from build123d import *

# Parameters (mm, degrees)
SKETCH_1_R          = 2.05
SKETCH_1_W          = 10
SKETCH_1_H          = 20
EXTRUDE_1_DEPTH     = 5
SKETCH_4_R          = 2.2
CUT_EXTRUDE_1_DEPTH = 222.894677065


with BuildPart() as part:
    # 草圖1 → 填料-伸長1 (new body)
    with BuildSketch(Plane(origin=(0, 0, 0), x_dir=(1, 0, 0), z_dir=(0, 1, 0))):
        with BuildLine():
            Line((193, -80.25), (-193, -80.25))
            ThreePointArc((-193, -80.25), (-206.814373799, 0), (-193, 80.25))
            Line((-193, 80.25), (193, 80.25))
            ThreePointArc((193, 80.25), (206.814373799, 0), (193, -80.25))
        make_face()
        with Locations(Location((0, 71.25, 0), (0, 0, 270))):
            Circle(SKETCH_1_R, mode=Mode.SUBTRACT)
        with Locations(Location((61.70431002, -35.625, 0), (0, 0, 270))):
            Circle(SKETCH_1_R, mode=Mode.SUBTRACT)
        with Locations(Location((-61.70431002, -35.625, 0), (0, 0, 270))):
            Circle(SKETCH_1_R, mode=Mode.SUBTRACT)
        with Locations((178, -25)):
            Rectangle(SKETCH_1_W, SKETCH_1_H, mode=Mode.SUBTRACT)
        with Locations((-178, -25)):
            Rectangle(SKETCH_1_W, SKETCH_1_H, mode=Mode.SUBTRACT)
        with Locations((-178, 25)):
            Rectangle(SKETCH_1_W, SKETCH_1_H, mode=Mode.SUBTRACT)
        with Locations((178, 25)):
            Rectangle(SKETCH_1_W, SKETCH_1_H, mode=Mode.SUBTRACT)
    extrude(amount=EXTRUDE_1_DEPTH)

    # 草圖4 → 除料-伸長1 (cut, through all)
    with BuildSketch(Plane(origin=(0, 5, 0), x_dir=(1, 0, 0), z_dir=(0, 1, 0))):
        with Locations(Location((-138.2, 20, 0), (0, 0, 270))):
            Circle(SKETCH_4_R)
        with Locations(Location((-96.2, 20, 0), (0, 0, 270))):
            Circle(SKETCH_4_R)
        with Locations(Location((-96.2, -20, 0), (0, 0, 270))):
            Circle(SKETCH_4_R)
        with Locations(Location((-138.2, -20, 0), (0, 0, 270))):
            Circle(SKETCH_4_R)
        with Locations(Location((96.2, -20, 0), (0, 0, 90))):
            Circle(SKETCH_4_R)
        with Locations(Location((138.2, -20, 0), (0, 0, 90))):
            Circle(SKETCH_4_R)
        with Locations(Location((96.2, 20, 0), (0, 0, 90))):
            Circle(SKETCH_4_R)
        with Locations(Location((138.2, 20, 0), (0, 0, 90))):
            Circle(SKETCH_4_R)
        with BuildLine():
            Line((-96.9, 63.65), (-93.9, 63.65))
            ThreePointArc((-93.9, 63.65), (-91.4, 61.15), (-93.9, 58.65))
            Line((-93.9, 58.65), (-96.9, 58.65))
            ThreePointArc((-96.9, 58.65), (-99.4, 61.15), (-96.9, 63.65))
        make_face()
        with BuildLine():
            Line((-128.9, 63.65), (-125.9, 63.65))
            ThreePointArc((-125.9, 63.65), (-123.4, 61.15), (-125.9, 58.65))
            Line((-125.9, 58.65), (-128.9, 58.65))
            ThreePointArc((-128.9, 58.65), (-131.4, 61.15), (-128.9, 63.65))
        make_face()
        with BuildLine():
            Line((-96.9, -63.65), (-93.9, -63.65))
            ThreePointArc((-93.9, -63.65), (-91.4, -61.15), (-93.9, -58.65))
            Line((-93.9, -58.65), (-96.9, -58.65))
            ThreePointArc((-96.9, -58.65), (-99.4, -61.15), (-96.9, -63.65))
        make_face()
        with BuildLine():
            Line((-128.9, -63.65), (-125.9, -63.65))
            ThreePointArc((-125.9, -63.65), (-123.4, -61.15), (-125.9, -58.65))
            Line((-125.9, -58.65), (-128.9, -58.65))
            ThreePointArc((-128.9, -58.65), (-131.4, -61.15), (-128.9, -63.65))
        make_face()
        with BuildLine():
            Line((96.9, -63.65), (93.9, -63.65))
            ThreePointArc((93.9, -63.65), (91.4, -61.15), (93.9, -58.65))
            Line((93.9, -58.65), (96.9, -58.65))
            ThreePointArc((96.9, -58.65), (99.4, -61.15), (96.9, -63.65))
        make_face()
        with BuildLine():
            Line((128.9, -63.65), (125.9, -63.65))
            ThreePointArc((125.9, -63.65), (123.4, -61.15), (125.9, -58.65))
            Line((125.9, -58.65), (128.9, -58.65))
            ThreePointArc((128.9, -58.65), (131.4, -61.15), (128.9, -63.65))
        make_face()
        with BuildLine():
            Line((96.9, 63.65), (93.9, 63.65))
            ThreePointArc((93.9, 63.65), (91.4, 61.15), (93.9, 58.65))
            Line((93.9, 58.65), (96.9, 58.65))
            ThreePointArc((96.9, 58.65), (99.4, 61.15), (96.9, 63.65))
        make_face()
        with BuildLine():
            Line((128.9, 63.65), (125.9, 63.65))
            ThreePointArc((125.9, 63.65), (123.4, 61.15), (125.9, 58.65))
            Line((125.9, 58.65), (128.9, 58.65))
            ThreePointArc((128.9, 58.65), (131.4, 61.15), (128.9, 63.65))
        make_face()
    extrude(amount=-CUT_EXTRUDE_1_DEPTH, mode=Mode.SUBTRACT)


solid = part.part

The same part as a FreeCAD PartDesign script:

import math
import FreeCAD as App
import Part
import Sketcher

doc = App.newDocument("Part")
body = doc.addObject("PartDesign::Body", "Body")

# Sketch on XZ plane
sketch1 = body.newObject("Sketcher::SketchObject", "Sketch")
sketch1.AttachmentSupport = (doc.getObject("XZ_Plane"), [""])
sketch1.MapMode = "FlatFace"
sketch1.addGeometry(Part.LineSegment(App.Vector(-193, 80.2, 0), App.Vector(193, 80.2, 0)), False)
sketch1.addGeometry(Part.ArcOfCircle(Part.Circle(App.Vector(-33.2, 0, 0), App.Vector(0, 0, 1), 240), math.radians(-20), math.radians(20)), False)
sketch1.addGeometry(Part.LineSegment(App.Vector(193, -80.2, 0), App.Vector(-193, -80.2, 0)), False)
sketch1.addGeometry(Part.ArcOfCircle(Part.Circle(App.Vector(33.2, 0, 0), App.Vector(0, 0, 1), 240), math.radians(160), math.radians(200)), False)
sketch1.addGeometry(Part.LineSegment(App.Vector(173, 35, 0), App.Vector(173, 15, 0)), False)
sketch1.addGeometry(Part.LineSegment(App.Vector(173, 15, 0), App.Vector(183, 15, 0)), False)
sketch1.addGeometry(Part.LineSegment(App.Vector(183, 15, 0), App.Vector(183, 35, 0)), False)
sketch1.addGeometry(Part.LineSegment(App.Vector(183, 35, 0), App.Vector(173, 35, 0)), False)
sketch1.addGeometry(Part.Circle(App.Vector(61.7, 35.6, 0), App.Vector(0, 0, 1), 2), False)
sketch1.addGeometry(Part.Circle(App.Vector(-61.7, 35.6, 0), App.Vector(0, 0, 1), 2), False)
sketch1.addGeometry(Part.LineSegment(App.Vector(-183, 35, 0), App.Vector(-183, 15, 0)), False)
sketch1.addGeometry(Part.LineSegment(App.Vector(-183, 15, 0), App.Vector(-173, 15, 0)), False)
sketch1.addGeometry(Part.LineSegment(App.Vector(-173, 15, 0), App.Vector(-173, 35, 0)), False)
sketch1.addGeometry(Part.LineSegment(App.Vector(-173, 35, 0), App.Vector(-183, 35, 0)), False)
sketch1.addGeometry(Part.LineSegment(App.Vector(173, -15, 0), App.Vector(173, -35, 0)), False)
sketch1.addGeometry(Part.LineSegment(App.Vector(173, -35, 0), App.Vector(183, -35, 0)), False)
sketch1.addGeometry(Part.LineSegment(App.Vector(183, -35, 0), App.Vector(183, -15, 0)), False)
sketch1.addGeometry(Part.LineSegment(App.Vector(183, -15, 0), App.Vector(173, -15, 0)), False)
sketch1.addGeometry(Part.LineSegment(App.Vector(-183, -15, 0), App.Vector(-183, -35, 0)), False)
sketch1.addGeometry(Part.LineSegment(App.Vector(-183, -35, 0), App.Vector(-173, -35, 0)), False)
sketch1.addGeometry(Part.LineSegment(App.Vector(-173, -35, 0), App.Vector(-173, -15, 0)), False)
sketch1.addGeometry(Part.LineSegment(App.Vector(-173, -15, 0), App.Vector(-183, -15, 0)), False)
sketch1.addGeometry(Part.Circle(App.Vector(0, -71.2, 0), App.Vector(0, 0, 1), 2), False)
sketch1.addConstraint(Sketcher.Constraint("Coincident", 0, 2, 1, 2))
sketch1.addConstraint(Sketcher.Constraint("Coincident", 1, 1, 2, 1))
sketch1.addConstraint(Sketcher.Constraint("Coincident", 2, 2, 3, 2))
sketch1.addConstraint(Sketcher.Constraint("Coincident", 3, 1, 0, 1))
sketch1.addConstraint(Sketcher.Constraint("Coincident", 4, 2, 5, 1))
sketch1.addConstraint(Sketcher.Constraint("Coincident", 5, 2, 6, 1))
sketch1.addConstraint(Sketcher.Constraint("Coincident", 6, 2, 7, 1))
sketch1.addConstraint(Sketcher.Constraint("Coincident", 7, 2, 4, 1))
sketch1.addConstraint(Sketcher.Constraint("Coincident", 10, 2, 11, 1))
sketch1.addConstraint(Sketcher.Constraint("Coincident", 11, 2, 12, 1))
sketch1.addConstraint(Sketcher.Constraint("Coincident", 12, 2, 13, 1))
sketch1.addConstraint(Sketcher.Constraint("Coincident", 13, 2, 10, 1))
sketch1.addConstraint(Sketcher.Constraint("Coincident", 14, 2, 15, 1))
sketch1.addConstraint(Sketcher.Constraint("Coincident", 15, 2, 16, 1))
sketch1.addConstraint(Sketcher.Constraint("Coincident", 16, 2, 17, 1))
sketch1.addConstraint(Sketcher.Constraint("Coincident", 17, 2, 14, 1))
sketch1.addConstraint(Sketcher.Constraint("Coincident", 18, 2, 19, 1))
sketch1.addConstraint(Sketcher.Constraint("Coincident", 19, 2, 20, 1))
sketch1.addConstraint(Sketcher.Constraint("Coincident", 20, 2, 21, 1))
sketch1.addConstraint(Sketcher.Constraint("Coincident", 21, 2, 18, 1))
sketch1.addConstraint(Sketcher.Constraint("Horizontal", 0))
sketch1.addConstraint(Sketcher.Constraint("Horizontal", 2))
sketch1.addConstraint(Sketcher.Constraint("Vertical", 4))
sketch1.addConstraint(Sketcher.Constraint("Horizontal", 5))
sketch1.addConstraint(Sketcher.Constraint("Vertical", 6))
sketch1.addConstraint(Sketcher.Constraint("Horizontal", 7))
sketch1.addConstraint(Sketcher.Constraint("Vertical", 10))
sketch1.addConstraint(Sketcher.Constraint("Horizontal", 11))
sketch1.addConstraint(Sketcher.Constraint("Vertical", 12))
sketch1.addConstraint(Sketcher.Constraint("Horizontal", 13))
sketch1.addConstraint(Sketcher.Constraint("Vertical", 14))
sketch1.addConstraint(Sketcher.Constraint("Horizontal", 15))
sketch1.addConstraint(Sketcher.Constraint("Vertical", 16))
sketch1.addConstraint(Sketcher.Constraint("Horizontal", 17))
sketch1.addConstraint(Sketcher.Constraint("Vertical", 18))
sketch1.addConstraint(Sketcher.Constraint("Horizontal", 19))
sketch1.addConstraint(Sketcher.Constraint("Vertical", 20))
sketch1.addConstraint(Sketcher.Constraint("Horizontal", 21))
sketch1.addConstraint(Sketcher.Constraint("Equal", 1, 3))
sketch1.addConstraint(Sketcher.Constraint("Equal", 8, 9))
sketch1.addConstraint(Sketcher.Constraint("Equal", 9, 22))
sketch1.addConstraint(Sketcher.Constraint("Symmetric", 1, 3, 3, 3, -1, 1))
sketch1.addConstraint(Sketcher.Constraint("Symmetric", 12, 2, 14, 2, -1, 1))
sketch1.addConstraint(Sketcher.Constraint("Symmetric", 10, 2, 16, 2, -1, 1))
sketch1.addConstraint(Sketcher.Constraint("Symmetric", 6, 2, 18, 2, -1, 1))
sketch1.addConstraint(Sketcher.Constraint("Symmetric", 4, 2, 20, 2, -1, 1))
sketch1.addConstraint(Sketcher.Constraint("Symmetric", 8, 3, 9, 3, -2))
sketch1.addConstraint(Sketcher.Constraint("Symmetric", 5, 2, 10, 2, -2))
sketch1.addConstraint(Sketcher.Constraint("Symmetric", 7, 2, 12, 2, -2))
sketch1.addConstraint(Sketcher.Constraint("Symmetric", 0, 2, 1, 1, -1))
sketch1.addConstraint(Sketcher.Constraint("PointOnObject", 22, 3, -2))
sketch1.addConstraint(Sketcher.Constraint("Radius", 1, 240.0))
sketch1.addConstraint(Sketcher.Constraint("Diameter", 8, 4.1))
sketch1.addConstraint(Sketcher.Constraint("DistanceX", 0, 1, 0, 2, 386.0))
sketch1.addConstraint(Sketcher.Constraint("DistanceX", 5, 1, 5, 2, 10.0))
sketch1.addConstraint(Sketcher.Constraint("DistanceY", 4, 2, 4, 1, 20.0))
sketch1.addConstraint(Sketcher.Constraint("DistanceX", -1, 1, 4, 2, 173.0))
sketch1.addConstraint(Sketcher.Constraint("DistanceY", -1, 1, 4, 2, 15.0))
sketch1.addConstraint(Sketcher.Constraint("DistanceY", 1, 1, 22, 3, 9.0))
sketch1.addConstraint(Sketcher.Constraint("DistanceY", 22, 3, 0, 2, 151.5))
sketch1.addConstraint(Sketcher.Constraint("DistanceY", -1, 1, 8, 3, 35.625))
sketch1.addConstraint(Sketcher.Constraint("DistanceX", -1, 1, 8, 3, 61.70431))
pad1 = body.newObject("PartDesign::Pad", "Pad")
pad1.Profile = sketch1
pad1.Length = 5
pad1.Reversed = True

# Sketch on XZ plane
sketch2 = body.newObject("Sketcher::SketchObject", "Sketch001")
sketch2.AttachmentSupport = (doc.getObject("XZ_Plane"), [""])
sketch2.MapMode = "FlatFace"
sketch2.AttachmentOffset = App.Placement(App.Vector(0, 0, -5), App.Rotation())
sketch2.addGeometry(Part.Circle(App.Vector(-138.2, -20, 0), App.Vector(0, 0, 1), 2.2), False)
sketch2.addGeometry(Part.Circle(App.Vector(-96.2, -20, 0), App.Vector(0, 0, 1), 2.2), False)
sketch2.addGeometry(Part.Circle(App.Vector(-96.2, 20, 0), App.Vector(0, 0, 1), 2.2), False)
sketch2.addGeometry(Part.Circle(App.Vector(-138.2, 20, 0), App.Vector(0, 0, 1), 2.2), False)
sketch2.addGeometry(Part.Circle(App.Vector(96.2, 20, 0), App.Vector(0, 0, 1), 2.2), False)
sketch2.addGeometry(Part.Circle(App.Vector(138.2, 20, 0), App.Vector(0, 0, 1), 2.2), False)
sketch2.addGeometry(Part.Circle(App.Vector(96.2, -20, 0), App.Vector(0, 0, 1), 2.2), False)
sketch2.addGeometry(Part.Circle(App.Vector(138.2, -20, 0), App.Vector(0, 0, 1), 2.2), False)
sketch2.addGeometry(Part.LineSegment(App.Vector(-93.9, -63.6, 0), App.Vector(-96.9, -63.6, 0)), False)
sketch2.addGeometry(Part.ArcOfCircle(Part.Circle(App.Vector(-96.9, -61.1, 0), App.Vector(0, 0, 1), 2.5), math.radians(90), math.radians(270)), False)
sketch2.addGeometry(Part.LineSegment(App.Vector(-96.9, -58.6, 0), App.Vector(-93.9, -58.6, 0)), False)
sketch2.addGeometry(Part.ArcOfCircle(Part.Circle(App.Vector(-93.9, -61.1, 0), App.Vector(0, 0, 1), 2.5), math.radians(-90), math.radians(90)), False)
sketch2.addGeometry(Part.LineSegment(App.Vector(-125.9, -63.6, 0), App.Vector(-128.9, -63.6, 0)), False)
sketch2.addGeometry(Part.ArcOfCircle(Part.Circle(App.Vector(-128.9, -61.1, 0), App.Vector(0, 0, 1), 2.5), math.radians(90), math.radians(270)), False)
sketch2.addGeometry(Part.LineSegment(App.Vector(-128.9, -58.6, 0), App.Vector(-125.9, -58.6, 0)), False)
sketch2.addGeometry(Part.ArcOfCircle(Part.Circle(App.Vector(-125.9, -61.1, 0), App.Vector(0, 0, 1), 2.5), math.radians(-90), math.radians(90)), False)
sketch2.addGeometry(Part.LineSegment(App.Vector(-96.9, 63.6, 0), App.Vector(-93.9, 63.6, 0)), False)
sketch2.addGeometry(Part.ArcOfCircle(Part.Circle(App.Vector(-93.9, 61.1, 0), App.Vector(0, 0, 1), 2.5), math.radians(-90), math.radians(90)), False)
sketch2.addGeometry(Part.LineSegment(App.Vector(-93.9, 58.6, 0), App.Vector(-96.9, 58.6, 0)), False)
sketch2.addGeometry(Part.ArcOfCircle(Part.Circle(App.Vector(-96.9, 61.1, 0), App.Vector(0, 0, 1), 2.5), math.radians(90), math.radians(270)), False)
sketch2.addGeometry(Part.LineSegment(App.Vector(-128.9, 63.6, 0), App.Vector(-125.9, 63.6, 0)), False)
sketch2.addGeometry(Part.ArcOfCircle(Part.Circle(App.Vector(-125.9, 61.1, 0), App.Vector(0, 0, 1), 2.5), math.radians(-90), math.radians(90)), False)
sketch2.addGeometry(Part.LineSegment(App.Vector(-125.9, 58.6, 0), App.Vector(-128.9, 58.6, 0)), False)
sketch2.addGeometry(Part.ArcOfCircle(Part.Circle(App.Vector(-128.9, 61.1, 0), App.Vector(0, 0, 1), 2.5), math.radians(90), math.radians(270)), False)
sketch2.addGeometry(Part.LineSegment(App.Vector(93.9, 63.6, 0), App.Vector(96.9, 63.6, 0)), False)
sketch2.addGeometry(Part.ArcOfCircle(Part.Circle(App.Vector(96.9, 61.1, 0), App.Vector(0, 0, 1), 2.5), math.radians(-90), math.radians(90)), False)
sketch2.addGeometry(Part.LineSegment(App.Vector(96.9, 58.6, 0), App.Vector(93.9, 58.6, 0)), False)
sketch2.addGeometry(Part.ArcOfCircle(Part.Circle(App.Vector(93.9, 61.1, 0), App.Vector(0, 0, 1), 2.5), math.radians(90), math.radians(270)), False)
sketch2.addGeometry(Part.LineSegment(App.Vector(125.9, 63.6, 0), App.Vector(128.9, 63.6, 0)), False)
sketch2.addGeometry(Part.ArcOfCircle(Part.Circle(App.Vector(128.9, 61.1, 0), App.Vector(0, 0, 1), 2.5), math.radians(-90), math.radians(90)), False)
sketch2.addGeometry(Part.LineSegment(App.Vector(128.9, 58.6, 0), App.Vector(125.9, 58.6, 0)), False)
sketch2.addGeometry(Part.ArcOfCircle(Part.Circle(App.Vector(125.9, 61.1, 0), App.Vector(0, 0, 1), 2.5), math.radians(90), math.radians(270)), False)
sketch2.addGeometry(Part.LineSegment(App.Vector(96.9, -63.6, 0), App.Vector(93.9, -63.6, 0)), False)
sketch2.addGeometry(Part.ArcOfCircle(Part.Circle(App.Vector(93.9, -61.1, 0), App.Vector(0, 0, 1), 2.5), math.radians(90), math.radians(270)), False)
sketch2.addGeometry(Part.LineSegment(App.Vector(93.9, -58.6, 0), App.Vector(96.9, -58.6, 0)), False)
sketch2.addGeometry(Part.ArcOfCircle(Part.Circle(App.Vector(96.9, -61.1, 0), App.Vector(0, 0, 1), 2.5), math.radians(-90), math.radians(90)), False)
sketch2.addGeometry(Part.LineSegment(App.Vector(128.9, -63.6, 0), App.Vector(125.9, -63.6, 0)), False)
sketch2.addGeometry(Part.ArcOfCircle(Part.Circle(App.Vector(125.9, -61.1, 0), App.Vector(0, 0, 1), 2.5), math.radians(90), math.radians(270)), False)
sketch2.addGeometry(Part.LineSegment(App.Vector(125.9, -58.6, 0), App.Vector(128.9, -58.6, 0)), False)
sketch2.addGeometry(Part.ArcOfCircle(Part.Circle(App.Vector(128.9, -61.1, 0), App.Vector(0, 0, 1), 2.5), math.radians(-90), math.radians(90)), False)
sketch2.addConstraint(Sketcher.Constraint("Tangent", 8, 2, 9, 2))
sketch2.addConstraint(Sketcher.Constraint("Tangent", 9, 1, 10, 1))
sketch2.addConstraint(Sketcher.Constraint("Tangent", 10, 2, 11, 2))
sketch2.addConstraint(Sketcher.Constraint("Tangent", 11, 1, 8, 1))
sketch2.addConstraint(Sketcher.Constraint("Tangent", 12, 2, 13, 2))
sketch2.addConstraint(Sketcher.Constraint("Tangent", 13, 1, 14, 1))
sketch2.addConstraint(Sketcher.Constraint("Tangent", 14, 2, 15, 2))
sketch2.addConstraint(Sketcher.Constraint("Tangent", 15, 1, 12, 1))
sketch2.addConstraint(Sketcher.Constraint("Tangent", 16, 2, 17, 2))
sketch2.addConstraint(Sketcher.Constraint("Tangent", 17, 1, 18, 1))
sketch2.addConstraint(Sketcher.Constraint("Tangent", 18, 2, 19, 2))
sketch2.addConstraint(Sketcher.Constraint("Tangent", 19, 1, 16, 1))
sketch2.addConstraint(Sketcher.Constraint("Tangent", 20, 2, 21, 2))
sketch2.addConstraint(Sketcher.Constraint("Tangent", 21, 1, 22, 1))
sketch2.addConstraint(Sketcher.Constraint("Tangent", 22, 2, 23, 2))
sketch2.addConstraint(Sketcher.Constraint("Tangent", 23, 1, 20, 1))
sketch2.addConstraint(Sketcher.Constraint("Tangent", 24, 2, 25, 2))
sketch2.addConstraint(Sketcher.Constraint("Tangent", 25, 1, 26, 1))
sketch2.addConstraint(Sketcher.Constraint("Tangent", 26, 2, 27, 2))
sketch2.addConstraint(Sketcher.Constraint("Tangent", 27, 1, 24, 1))
sketch2.addConstraint(Sketcher.Constraint("Tangent", 28, 2, 29, 2))
sketch2.addConstraint(Sketcher.Constraint("Tangent", 29, 1, 30, 1))
sketch2.addConstraint(Sketcher.Constraint("Tangent", 30, 2, 31, 2))
sketch2.addConstraint(Sketcher.Constraint("Tangent", 31, 1, 28, 1))
sketch2.addConstraint(Sketcher.Constraint("Tangent", 32, 2, 33, 2))
sketch2.addConstraint(Sketcher.Constraint("Tangent", 33, 1, 34, 1))
sketch2.addConstraint(Sketcher.Constraint("Tangent", 34, 2, 35, 2))
sketch2.addConstraint(Sketcher.Constraint("Tangent", 35, 1, 32, 1))
sketch2.addConstraint(Sketcher.Constraint("Tangent", 36, 2, 37, 2))
sketch2.addConstraint(Sketcher.Constraint("Tangent", 37, 1, 38, 1))
sketch2.addConstraint(Sketcher.Constraint("Tangent", 38, 2, 39, 2))
sketch2.addConstraint(Sketcher.Constraint("Tangent", 39, 1, 36, 1))
sketch2.addConstraint(Sketcher.Constraint("Horizontal", 8))
sketch2.addConstraint(Sketcher.Constraint("Horizontal", 10))
sketch2.addConstraint(Sketcher.Constraint("Horizontal", 12))
sketch2.addConstraint(Sketcher.Constraint("Horizontal", 14))
sketch2.addConstraint(Sketcher.Constraint("Horizontal", 16))
sketch2.addConstraint(Sketcher.Constraint("Horizontal", 18))
sketch2.addConstraint(Sketcher.Constraint("Horizontal", 20))
sketch2.addConstraint(Sketcher.Constraint("Horizontal", 22))
sketch2.addConstraint(Sketcher.Constraint("Horizontal", 24))
sketch2.addConstraint(Sketcher.Constraint("Horizontal", 26))
sketch2.addConstraint(Sketcher.Constraint("Horizontal", 28))
sketch2.addConstraint(Sketcher.Constraint("Horizontal", 30))
sketch2.addConstraint(Sketcher.Constraint("Horizontal", 32))
sketch2.addConstraint(Sketcher.Constraint("Horizontal", 34))
sketch2.addConstraint(Sketcher.Constraint("Horizontal", 36))
sketch2.addConstraint(Sketcher.Constraint("Horizontal", 38))
sketch2.addConstraint(Sketcher.Constraint("Equal", 0, 1))
sketch2.addConstraint(Sketcher.Constraint("Equal", 1, 2))
sketch2.addConstraint(Sketcher.Constraint("Equal", 2, 3))
sketch2.addConstraint(Sketcher.Constraint("Equal", 3, 4))
sketch2.addConstraint(Sketcher.Constraint("Equal", 4, 5))
sketch2.addConstraint(Sketcher.Constraint("Equal", 5, 6))
sketch2.addConstraint(Sketcher.Constraint("Equal", 6, 7))
sketch2.addConstraint(Sketcher.Constraint("Equal", 11, 13))
sketch2.addConstraint(Sketcher.Constraint("Equal", 15, 17))
sketch2.addConstraint(Sketcher.Constraint("Equal", 19, 21))
sketch2.addConstraint(Sketcher.Constraint("Equal", 23, 25))
sketch2.addConstraint(Sketcher.Constraint("Equal", 27, 29))
sketch2.addConstraint(Sketcher.Constraint("Equal", 31, 33))
sketch2.addConstraint(Sketcher.Constraint("Equal", 35, 37))
sketch2.addConstraint(Sketcher.Constraint("Symmetric", 1, 3, 4, 3, -1, 1))
sketch2.addConstraint(Sketcher.Constraint("Symmetric", 0, 3, 5, 3, -1, 1))
sketch2.addConstraint(Sketcher.Constraint("Symmetric", 2, 3, 6, 3, -1, 1))
sketch2.addConstraint(Sketcher.Constraint("Symmetric", 3, 3, 7, 3, -1, 1))
sketch2.addConstraint(Sketcher.Constraint("Symmetric", 9, 3, 25, 3, -1, 1))
sketch2.addConstraint(Sketcher.Constraint("Symmetric", 13, 3, 29, 3, -1, 1))
sketch2.addConstraint(Sketcher.Constraint("Symmetric", 17, 3, 33, 3, -1, 1))
sketch2.addConstraint(Sketcher.Constraint("Symmetric", 21, 3, 37, 3, -1, 1))
sketch2.addConstraint(Sketcher.Constraint("Symmetric", 2, 3, 4, 3, -2))
sketch2.addConstraint(Sketcher.Constraint("Symmetric", 3, 3, 5, 3, -2))
sketch2.addConstraint(Sketcher.Constraint("Symmetric", 19, 3, 25, 3, -2))
sketch2.addConstraint(Sketcher.Constraint("Symmetric", 23, 3, 29, 3, -2))
sketch2.addConstraint(Sketcher.Constraint("Horizontal", 0, 3, 1, 3))
sketch2.addConstraint(Sketcher.Constraint("Horizontal", 11, 3, 13, 3))
sketch2.addConstraint(Sketcher.Constraint("Vertical", 11, 3, 17, 3))
sketch2.addConstraint(Sketcher.Constraint("Vertical", 15, 3, 21, 3))
sketch2.addConstraint(Sketcher.Constraint("Vertical", 27, 3, 33, 3))
sketch2.addConstraint(Sketcher.Constraint("Vertical", 25, 3, 35, 3))
sketch2.addConstraint(Sketcher.Constraint("Vertical", 31, 3, 37, 3))
sketch2.addConstraint(Sketcher.Constraint("Vertical", 29, 3, 39, 3))
sketch2.addConstraint(Sketcher.Constraint("Equal", 10, 12))
sketch2.addConstraint(Sketcher.Constraint("Diameter", 0, 4.4))
sketch2.addConstraint(Sketcher.Constraint("Radius", 9, 2.5))
sketch2.addConstraint(Sketcher.Constraint("DistanceX", 8, 2, 8, 1, 3.0))
sketch2.addConstraint(Sketcher.Constraint("DistanceY", 0, 3, -1, 1, 20.0))
sketch2.addConstraint(Sketcher.Constraint("DistanceX", 0, 3, 1, 3, 42.0))
sketch2.addConstraint(Sketcher.Constraint("DistanceX", 13, 3, 9, 3, 32.0))
sketch2.addConstraint(Sketcher.Constraint("DistanceX", 0, 3, -1, 1, 138.2))
sketch2.addConstraint(Sketcher.Constraint("DistanceX", 9, 3, -1, 1, 96.9))
sketch2.addConstraint(Sketcher.Constraint("DistanceY", 11, 3, 17, 3, 122.3))
pocket1 = body.newObject("PartDesign::Pocket", "Pocket")
pocket1.Profile = sketch2
pocket1.Type = "ThroughAll"
pocket1.Reversed = True

doc.recompute()
